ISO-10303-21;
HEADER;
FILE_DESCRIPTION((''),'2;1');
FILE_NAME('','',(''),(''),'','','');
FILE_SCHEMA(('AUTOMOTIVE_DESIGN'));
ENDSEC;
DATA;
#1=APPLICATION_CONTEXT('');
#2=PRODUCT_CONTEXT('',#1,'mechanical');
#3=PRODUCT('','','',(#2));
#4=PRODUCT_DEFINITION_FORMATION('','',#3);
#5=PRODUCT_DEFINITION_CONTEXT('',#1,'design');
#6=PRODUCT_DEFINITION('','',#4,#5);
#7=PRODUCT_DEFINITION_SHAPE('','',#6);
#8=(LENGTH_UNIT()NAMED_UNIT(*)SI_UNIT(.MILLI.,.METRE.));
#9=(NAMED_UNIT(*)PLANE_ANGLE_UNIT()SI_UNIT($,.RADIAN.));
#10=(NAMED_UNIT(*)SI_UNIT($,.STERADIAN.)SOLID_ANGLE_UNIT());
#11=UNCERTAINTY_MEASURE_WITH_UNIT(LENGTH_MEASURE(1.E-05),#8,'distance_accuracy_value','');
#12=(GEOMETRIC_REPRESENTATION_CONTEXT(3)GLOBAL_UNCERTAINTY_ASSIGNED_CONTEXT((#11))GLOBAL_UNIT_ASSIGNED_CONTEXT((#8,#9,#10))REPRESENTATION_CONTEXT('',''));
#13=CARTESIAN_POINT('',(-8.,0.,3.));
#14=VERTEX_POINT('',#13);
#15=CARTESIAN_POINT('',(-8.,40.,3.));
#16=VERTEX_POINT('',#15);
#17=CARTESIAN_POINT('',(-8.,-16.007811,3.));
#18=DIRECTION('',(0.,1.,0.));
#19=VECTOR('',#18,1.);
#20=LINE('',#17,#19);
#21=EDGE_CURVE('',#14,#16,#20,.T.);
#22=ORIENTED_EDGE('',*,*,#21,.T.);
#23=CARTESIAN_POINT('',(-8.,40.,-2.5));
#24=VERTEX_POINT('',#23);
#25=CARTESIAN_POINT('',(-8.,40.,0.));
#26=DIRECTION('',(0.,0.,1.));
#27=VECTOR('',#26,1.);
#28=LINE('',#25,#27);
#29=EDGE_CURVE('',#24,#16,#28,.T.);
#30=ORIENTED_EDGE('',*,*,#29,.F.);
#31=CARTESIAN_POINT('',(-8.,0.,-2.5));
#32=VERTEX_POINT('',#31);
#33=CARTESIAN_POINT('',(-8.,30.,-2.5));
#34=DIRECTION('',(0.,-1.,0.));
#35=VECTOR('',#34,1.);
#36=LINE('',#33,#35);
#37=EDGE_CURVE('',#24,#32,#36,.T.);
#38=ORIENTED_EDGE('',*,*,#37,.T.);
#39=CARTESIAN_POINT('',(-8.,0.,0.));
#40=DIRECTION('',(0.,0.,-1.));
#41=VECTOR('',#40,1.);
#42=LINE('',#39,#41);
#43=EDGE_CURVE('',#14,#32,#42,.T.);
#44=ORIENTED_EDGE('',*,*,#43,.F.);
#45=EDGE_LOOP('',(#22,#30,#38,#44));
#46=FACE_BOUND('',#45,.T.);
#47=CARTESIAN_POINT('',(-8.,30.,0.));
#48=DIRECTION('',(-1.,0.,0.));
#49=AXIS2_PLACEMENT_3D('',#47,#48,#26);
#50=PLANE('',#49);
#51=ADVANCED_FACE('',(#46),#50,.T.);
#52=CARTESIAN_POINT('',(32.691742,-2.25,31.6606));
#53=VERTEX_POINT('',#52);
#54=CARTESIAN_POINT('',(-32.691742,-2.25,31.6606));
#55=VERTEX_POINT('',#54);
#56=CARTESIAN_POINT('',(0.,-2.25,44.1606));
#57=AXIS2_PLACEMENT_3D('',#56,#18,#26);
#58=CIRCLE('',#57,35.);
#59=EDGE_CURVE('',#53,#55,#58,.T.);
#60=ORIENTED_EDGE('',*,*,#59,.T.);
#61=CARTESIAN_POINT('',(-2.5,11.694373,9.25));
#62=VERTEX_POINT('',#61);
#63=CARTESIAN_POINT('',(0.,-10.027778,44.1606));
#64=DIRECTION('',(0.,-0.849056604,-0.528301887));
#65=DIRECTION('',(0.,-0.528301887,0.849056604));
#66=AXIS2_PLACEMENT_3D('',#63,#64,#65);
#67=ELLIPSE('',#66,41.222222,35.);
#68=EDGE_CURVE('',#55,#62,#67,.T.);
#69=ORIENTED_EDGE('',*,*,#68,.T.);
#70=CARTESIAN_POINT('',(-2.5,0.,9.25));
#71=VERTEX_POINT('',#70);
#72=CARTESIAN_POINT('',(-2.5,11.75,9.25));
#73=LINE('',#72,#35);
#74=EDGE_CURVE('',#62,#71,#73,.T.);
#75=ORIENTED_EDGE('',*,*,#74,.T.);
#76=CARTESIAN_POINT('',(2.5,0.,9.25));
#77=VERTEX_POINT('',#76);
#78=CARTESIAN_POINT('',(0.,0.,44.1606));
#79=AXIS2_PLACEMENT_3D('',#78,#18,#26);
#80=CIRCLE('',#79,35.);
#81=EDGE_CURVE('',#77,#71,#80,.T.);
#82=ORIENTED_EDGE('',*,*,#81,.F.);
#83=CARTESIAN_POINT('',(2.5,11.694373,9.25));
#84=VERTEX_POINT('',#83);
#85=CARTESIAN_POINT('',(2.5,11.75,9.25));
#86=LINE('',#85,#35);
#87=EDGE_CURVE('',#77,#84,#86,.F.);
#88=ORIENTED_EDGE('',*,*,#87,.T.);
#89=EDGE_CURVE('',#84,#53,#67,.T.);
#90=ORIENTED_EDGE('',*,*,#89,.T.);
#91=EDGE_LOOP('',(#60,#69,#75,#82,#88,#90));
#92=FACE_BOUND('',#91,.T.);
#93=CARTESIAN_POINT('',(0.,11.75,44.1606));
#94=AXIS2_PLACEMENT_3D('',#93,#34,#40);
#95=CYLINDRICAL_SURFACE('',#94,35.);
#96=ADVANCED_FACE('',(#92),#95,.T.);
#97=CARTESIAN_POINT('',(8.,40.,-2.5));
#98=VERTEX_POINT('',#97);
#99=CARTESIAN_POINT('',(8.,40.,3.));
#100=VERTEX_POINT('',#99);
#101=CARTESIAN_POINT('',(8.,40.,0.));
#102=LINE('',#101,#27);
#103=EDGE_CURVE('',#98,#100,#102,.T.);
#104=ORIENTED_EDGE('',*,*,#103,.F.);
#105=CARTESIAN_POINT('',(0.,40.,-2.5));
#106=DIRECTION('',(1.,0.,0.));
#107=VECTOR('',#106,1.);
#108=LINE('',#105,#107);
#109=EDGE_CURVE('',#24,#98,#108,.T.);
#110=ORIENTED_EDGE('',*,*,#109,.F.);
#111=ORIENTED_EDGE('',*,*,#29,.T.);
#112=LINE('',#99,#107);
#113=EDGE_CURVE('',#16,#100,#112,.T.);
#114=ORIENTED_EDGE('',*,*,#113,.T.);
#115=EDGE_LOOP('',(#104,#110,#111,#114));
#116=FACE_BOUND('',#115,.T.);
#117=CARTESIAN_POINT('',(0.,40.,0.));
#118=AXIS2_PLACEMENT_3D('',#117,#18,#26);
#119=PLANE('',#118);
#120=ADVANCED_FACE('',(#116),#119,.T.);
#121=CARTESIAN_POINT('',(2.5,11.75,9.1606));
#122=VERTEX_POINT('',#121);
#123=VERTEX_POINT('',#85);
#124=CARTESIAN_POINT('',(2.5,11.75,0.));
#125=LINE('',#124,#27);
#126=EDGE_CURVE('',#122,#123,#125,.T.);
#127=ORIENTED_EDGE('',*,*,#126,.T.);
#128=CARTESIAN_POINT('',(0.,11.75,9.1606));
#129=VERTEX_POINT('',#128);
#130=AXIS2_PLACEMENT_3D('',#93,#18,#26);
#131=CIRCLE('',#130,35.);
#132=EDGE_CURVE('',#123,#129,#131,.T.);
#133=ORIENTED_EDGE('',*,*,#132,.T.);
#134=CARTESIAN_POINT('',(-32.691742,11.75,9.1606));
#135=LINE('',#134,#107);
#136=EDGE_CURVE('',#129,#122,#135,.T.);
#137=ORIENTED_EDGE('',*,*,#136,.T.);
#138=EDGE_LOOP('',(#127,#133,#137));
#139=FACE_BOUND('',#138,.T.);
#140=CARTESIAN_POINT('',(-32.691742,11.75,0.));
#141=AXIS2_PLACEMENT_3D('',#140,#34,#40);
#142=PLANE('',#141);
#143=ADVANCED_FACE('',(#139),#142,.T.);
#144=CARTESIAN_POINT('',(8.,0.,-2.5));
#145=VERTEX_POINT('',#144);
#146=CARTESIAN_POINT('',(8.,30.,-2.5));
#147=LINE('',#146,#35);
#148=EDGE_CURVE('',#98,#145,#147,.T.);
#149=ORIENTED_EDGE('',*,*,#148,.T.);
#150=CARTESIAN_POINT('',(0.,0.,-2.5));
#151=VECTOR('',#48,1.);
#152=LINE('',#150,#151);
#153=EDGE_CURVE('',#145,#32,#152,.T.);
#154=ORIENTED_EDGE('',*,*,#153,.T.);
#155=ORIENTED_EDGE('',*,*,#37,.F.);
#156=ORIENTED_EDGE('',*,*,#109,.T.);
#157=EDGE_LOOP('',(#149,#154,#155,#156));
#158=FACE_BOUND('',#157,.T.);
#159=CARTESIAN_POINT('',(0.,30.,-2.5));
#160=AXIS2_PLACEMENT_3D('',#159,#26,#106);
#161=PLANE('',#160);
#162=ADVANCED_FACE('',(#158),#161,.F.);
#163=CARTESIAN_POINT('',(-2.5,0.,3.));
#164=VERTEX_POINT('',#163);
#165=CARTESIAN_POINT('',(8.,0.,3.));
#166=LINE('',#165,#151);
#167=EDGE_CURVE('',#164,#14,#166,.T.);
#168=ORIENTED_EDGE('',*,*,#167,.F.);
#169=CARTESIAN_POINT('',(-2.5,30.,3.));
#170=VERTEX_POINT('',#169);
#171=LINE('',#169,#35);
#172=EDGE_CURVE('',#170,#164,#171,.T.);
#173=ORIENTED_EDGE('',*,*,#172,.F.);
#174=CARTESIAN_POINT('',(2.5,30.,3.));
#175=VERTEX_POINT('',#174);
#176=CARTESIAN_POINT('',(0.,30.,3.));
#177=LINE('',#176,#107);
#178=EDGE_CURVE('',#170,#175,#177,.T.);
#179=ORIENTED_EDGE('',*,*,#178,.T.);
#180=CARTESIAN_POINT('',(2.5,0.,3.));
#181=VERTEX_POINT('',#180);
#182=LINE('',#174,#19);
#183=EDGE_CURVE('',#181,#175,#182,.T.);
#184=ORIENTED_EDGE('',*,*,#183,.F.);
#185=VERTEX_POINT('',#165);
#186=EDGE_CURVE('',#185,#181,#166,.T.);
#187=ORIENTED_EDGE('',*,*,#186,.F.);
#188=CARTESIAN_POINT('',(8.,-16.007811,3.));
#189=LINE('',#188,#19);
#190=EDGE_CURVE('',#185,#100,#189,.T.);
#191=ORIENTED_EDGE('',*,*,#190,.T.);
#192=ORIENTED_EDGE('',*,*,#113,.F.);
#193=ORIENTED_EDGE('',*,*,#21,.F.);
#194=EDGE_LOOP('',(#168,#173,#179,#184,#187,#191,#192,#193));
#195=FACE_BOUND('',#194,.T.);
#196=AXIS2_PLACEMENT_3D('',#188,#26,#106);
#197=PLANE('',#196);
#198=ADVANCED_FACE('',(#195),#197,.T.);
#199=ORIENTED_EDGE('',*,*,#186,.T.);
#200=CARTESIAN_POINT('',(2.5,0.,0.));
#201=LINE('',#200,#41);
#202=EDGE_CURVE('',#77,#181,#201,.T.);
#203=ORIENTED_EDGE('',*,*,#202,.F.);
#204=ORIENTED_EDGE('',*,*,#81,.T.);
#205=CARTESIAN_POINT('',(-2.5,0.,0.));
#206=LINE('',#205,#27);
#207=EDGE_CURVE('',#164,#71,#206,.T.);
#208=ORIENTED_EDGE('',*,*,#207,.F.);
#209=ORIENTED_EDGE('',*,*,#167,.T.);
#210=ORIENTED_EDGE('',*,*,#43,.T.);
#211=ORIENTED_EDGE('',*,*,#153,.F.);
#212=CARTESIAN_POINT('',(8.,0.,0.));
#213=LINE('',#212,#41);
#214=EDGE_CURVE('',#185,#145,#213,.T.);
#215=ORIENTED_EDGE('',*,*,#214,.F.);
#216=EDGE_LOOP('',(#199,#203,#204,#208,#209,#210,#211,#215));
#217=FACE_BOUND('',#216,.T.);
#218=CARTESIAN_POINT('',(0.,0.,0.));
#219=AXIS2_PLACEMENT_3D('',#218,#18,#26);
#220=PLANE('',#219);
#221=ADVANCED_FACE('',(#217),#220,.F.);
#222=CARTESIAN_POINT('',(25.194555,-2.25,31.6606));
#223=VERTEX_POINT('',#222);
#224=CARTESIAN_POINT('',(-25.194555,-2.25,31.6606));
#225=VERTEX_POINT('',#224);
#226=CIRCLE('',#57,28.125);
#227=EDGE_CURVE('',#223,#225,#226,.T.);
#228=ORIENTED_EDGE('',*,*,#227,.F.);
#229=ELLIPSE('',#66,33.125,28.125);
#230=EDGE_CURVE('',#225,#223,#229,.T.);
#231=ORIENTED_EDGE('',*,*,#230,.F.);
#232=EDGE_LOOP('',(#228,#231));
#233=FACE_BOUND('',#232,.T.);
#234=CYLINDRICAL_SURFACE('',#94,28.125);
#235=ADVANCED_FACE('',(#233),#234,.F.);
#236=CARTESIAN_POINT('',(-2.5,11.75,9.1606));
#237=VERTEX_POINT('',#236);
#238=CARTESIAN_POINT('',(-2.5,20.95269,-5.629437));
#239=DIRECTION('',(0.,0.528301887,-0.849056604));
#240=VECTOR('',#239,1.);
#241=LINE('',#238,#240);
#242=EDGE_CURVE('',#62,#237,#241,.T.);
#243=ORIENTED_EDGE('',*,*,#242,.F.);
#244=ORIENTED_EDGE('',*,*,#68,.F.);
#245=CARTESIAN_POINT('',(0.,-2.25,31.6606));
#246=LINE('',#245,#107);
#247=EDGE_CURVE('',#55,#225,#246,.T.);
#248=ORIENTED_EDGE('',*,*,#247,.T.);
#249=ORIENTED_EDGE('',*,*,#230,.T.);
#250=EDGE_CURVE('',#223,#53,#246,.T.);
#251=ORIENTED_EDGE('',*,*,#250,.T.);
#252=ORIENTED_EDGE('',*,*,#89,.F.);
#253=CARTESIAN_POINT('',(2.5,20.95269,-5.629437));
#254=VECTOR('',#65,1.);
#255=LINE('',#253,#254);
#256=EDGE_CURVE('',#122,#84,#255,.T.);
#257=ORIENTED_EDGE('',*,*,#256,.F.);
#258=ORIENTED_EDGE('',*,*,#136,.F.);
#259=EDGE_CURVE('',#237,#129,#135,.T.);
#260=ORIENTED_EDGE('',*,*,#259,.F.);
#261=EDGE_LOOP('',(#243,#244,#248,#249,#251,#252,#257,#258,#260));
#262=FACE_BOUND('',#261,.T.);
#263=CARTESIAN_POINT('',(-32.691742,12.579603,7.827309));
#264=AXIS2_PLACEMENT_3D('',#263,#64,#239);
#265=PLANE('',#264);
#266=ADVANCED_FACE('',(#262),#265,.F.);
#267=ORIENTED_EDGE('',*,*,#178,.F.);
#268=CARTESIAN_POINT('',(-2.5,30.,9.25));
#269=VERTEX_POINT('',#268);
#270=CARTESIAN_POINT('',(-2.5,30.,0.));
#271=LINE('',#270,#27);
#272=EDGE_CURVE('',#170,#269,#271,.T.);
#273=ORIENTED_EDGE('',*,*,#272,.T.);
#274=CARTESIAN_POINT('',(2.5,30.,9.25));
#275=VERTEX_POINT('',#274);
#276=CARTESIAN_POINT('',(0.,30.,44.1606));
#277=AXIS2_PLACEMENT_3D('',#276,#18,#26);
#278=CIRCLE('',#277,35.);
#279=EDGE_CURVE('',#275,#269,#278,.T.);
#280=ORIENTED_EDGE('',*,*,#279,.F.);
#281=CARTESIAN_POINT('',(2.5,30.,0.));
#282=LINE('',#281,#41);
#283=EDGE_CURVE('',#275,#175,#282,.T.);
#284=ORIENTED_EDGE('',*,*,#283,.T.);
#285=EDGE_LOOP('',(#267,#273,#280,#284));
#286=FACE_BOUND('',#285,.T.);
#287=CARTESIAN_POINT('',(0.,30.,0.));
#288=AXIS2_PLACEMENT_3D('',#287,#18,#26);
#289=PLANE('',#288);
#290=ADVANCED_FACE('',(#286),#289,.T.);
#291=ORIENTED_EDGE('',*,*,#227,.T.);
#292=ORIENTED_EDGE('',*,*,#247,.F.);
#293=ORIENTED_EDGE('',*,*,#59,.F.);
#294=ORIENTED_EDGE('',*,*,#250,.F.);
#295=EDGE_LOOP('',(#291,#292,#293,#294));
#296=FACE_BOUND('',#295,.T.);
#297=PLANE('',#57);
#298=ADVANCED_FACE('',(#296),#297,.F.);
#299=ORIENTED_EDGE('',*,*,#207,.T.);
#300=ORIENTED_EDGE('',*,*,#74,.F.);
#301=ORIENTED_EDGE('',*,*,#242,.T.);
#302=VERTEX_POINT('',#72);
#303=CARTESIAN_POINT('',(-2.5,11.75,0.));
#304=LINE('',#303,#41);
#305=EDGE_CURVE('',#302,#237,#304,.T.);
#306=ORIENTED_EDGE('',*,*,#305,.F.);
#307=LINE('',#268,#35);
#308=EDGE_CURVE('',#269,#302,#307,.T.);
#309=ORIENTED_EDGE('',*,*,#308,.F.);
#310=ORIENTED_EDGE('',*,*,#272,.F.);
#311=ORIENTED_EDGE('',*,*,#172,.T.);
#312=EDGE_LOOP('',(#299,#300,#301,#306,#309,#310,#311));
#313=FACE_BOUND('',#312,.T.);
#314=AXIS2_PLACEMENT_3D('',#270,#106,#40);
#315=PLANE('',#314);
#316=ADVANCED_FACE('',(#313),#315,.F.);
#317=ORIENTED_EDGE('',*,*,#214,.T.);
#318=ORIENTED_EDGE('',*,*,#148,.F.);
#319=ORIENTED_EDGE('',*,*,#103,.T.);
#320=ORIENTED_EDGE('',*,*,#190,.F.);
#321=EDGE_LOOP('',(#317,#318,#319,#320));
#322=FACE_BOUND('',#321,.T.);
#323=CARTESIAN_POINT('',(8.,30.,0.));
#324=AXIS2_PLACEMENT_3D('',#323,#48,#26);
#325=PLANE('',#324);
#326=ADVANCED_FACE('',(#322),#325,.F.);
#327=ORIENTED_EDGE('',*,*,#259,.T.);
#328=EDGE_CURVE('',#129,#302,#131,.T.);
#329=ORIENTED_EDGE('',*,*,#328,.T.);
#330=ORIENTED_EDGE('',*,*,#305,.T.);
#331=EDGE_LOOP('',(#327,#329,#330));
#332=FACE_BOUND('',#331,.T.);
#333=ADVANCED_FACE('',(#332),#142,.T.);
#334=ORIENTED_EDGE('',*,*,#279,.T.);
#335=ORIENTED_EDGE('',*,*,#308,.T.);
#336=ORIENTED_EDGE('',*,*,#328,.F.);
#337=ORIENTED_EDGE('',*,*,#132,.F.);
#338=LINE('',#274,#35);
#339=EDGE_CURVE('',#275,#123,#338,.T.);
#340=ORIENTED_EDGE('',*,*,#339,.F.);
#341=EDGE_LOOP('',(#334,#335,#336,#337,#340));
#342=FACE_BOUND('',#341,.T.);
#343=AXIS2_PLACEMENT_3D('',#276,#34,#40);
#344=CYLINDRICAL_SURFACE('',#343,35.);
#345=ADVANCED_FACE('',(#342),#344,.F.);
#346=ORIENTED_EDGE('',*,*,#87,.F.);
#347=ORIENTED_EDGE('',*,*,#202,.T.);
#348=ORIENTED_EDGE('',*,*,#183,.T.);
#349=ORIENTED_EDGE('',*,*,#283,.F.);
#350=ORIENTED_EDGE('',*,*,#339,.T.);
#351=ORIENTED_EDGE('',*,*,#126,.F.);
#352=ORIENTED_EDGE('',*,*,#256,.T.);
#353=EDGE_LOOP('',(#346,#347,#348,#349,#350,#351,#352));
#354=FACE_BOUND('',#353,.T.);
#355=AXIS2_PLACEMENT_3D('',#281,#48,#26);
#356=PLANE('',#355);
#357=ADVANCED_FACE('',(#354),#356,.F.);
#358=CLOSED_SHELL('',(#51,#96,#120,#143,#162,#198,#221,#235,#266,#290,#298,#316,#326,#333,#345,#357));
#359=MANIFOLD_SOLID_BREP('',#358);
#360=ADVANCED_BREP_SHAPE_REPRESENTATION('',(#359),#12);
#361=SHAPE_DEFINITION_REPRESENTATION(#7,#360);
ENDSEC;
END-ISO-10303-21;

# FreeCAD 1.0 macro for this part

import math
import FreeCAD as App
import Part
import Sketcher


def add_polygon(sketch, points):
    """Adds a closed chain of lines whose ends are joined by coincident constraints."""
    first, n = sketch.GeometryCount, len(points)
    for a, b in zip(points, points[1:] + points[:1]):
        sketch.addGeometry(Part.LineSegment(App.Vector(*a, 0), App.Vector(*b, 0)), False)
    for i in range(n):
        sketch.addConstraint(Sketcher.Constraint("Coincident", first + i, 2, first + (i + 1) % n, 1))

doc = App.newDocument("Part")
body = doc.addObject("PartDesign::Body", "Body")

sketch1 = body.newObject("Sketcher::SketchObject", "Sketch")
sketch1.AttachmentSupport = (doc.getObject("XZ_Plane"), [""])
sketch1.MapMode = "FlatFace"
sketch1.addGeometry([
    Part.LineSegment(App.Vector(-8, -2.5, 0), App.Vector(-8, 2.5, 0)),
    Part.LineSegment(App.Vector(-8, 2.5, 0), App.Vector(-2.5, 2.5, 0)),
    Part.LineSegment(App.Vector(-2.5, 2.5, 0), App.Vector(-2.5, 9.25, 0)),
    Part.ArcOfCircle(Part.Circle(App.Vector(0, 44.1606, 0), App.Vector(0, 0, 1), 35), math.radians(-94.096044), math.radians(-85.903956)),
    Part.LineSegment(App.Vector(2.5, 9.25, 0), App.Vector(2.5, 2.5, 0)),
    Part.LineSegment(App.Vector(2.5, 2.5, 0), App.Vector(8, 2.5, 0)),
    Part.LineSegment(App.Vector(8, 2.5, 0), App.Vector(8, -2.5, 0)),
    Part.LineSegment(App.Vector(8, -2.5, 0), App.Vector(-8, -2.5, 0)),
], False)
sketch1.addConstraint([
    Sketcher.Constraint("Coincident", 0, 2, 1, 1),
    Sketcher.Constraint("Coincident", 1, 2, 2, 1),
    Sketcher.Constraint("Coincident", 2, 2, 3, 1),
    Sketcher.Constraint("Coincident", 3, 2, 4, 1),
    Sketcher.Constraint("Coincident", 4, 2, 5, 1),
    Sketcher.Constraint("Coincident", 5, 2, 6, 1),
    Sketcher.Constraint("Coincident", 6, 2, 7, 1),
    Sketcher.Constraint("Coincident", 7, 2, 0, 1),
    Sketcher.Constraint("Vertical", 0),
    Sketcher.Constraint("Horizontal", 1),
    Sketcher.Constraint("Vertical", 2),
    Sketcher.Constraint("Vertical", 4),
    Sketcher.Constraint("Horizontal", 5),
    Sketcher.Constraint("Vertical", 6),
    Sketcher.Constraint("Horizontal", 7),
    Sketcher.Constraint("Symmetric", 0, 2, 6, 2, -1, 1),
    Sketcher.Constraint("Symmetric", 2, 2, 3, 2, -2),
    Sketcher.Constraint("Horizontal", 1, 2, 4, 2),
    Sketcher.Constraint("Radius", 3, 35.0),
    Sketcher.Constraint("DistanceX", 7, 2, 7, 1, 16.0),
    Sketcher.Constraint("DistanceY", 0, 1, 0, 2, 5.0),
    Sketcher.Constraint("DistanceX", 1, 1, 1, 2, 5.5),
    Sketcher.Constraint("DistanceY", 2, 1, 2, 2, 6.75),
])
pad1 = body.newObject("PartDesign::Pad", "Pad")
pad1.Profile = sketch1
pad1.Length = 30
pad1.Reversed = True

sketch2 = body.newObject("Sketcher::SketchObject", "Sketch001")
sketch2.AttachmentSupport = (doc.getObject("XZ_Plane"), [""])
sketch2.MapMode = "FlatFace"
sketch2.AttachmentOffset = App.Placement(App.Vector(0, 0, 2.25), App.Rotation())
sketch2.addGeometry([
    Part.ArcOfCircle(Part.Circle(App.Vector(0, 44.1606, 0), App.Vector(0, 0, 1), 35), math.radians(-159.075168), math.radians(-20.924832)),
    Part.LineSegment(App.Vector(-32.691742, 31.6606, 0), App.Vector(-25.194555, 31.6606, 0)),
    Part.ArcOfCircle(Part.Circle(App.Vector(0, 44.1606, 0), App.Vector(0, 0, 1), 28.125), math.radians(-153.6122), math.radians(-26.3878)),
    Part.LineSegment(App.Vector(25.194555, 31.6606, 0), App.Vector(32.691742, 31.6606, 0)),
], False)
sketch2.addConstraint([
    Sketcher.Constraint("Coincident", 0, 1, 1, 1),
    Sketcher.Constraint("Coincident", 1, 2, 2, 1),
    Sketcher.Constraint("Coincident", 2, 2, 3, 1),
    Sketcher.Constraint("Coincident", 3, 2, 0, 2),
    Sketcher.Constraint("Horizontal", 1),
    Sketcher.Constraint("Horizontal", 3),
    Sketcher.Constraint("Coincident", 2, 3, 0, 3),
    Sketcher.Constraint("Symmetric", 1, 2, 2, 2, -2),
    Sketcher.Constraint("Radius", 0, 35.0),
    Sketcher.Constraint("Radius", 2, 28.125),
    Sketcher.Constraint("DistanceY", 0, 1, 2, 3, 12.5),
    Sketcher.Constraint("DistanceY", -1, 1, 0, 3, 44.1606),
])
pad2 = body.newObject("PartDesign::Pad", "Pad001")
pad2.Profile = sketch2
pad2.Length = 14
pad2.Reversed = True

sketch3 = body.newObject("Sketcher::SketchObject", "Sketch002")
sketch3.AttachmentSupport = (doc.getObject("YZ_Plane"), [""])
sketch3.MapMode = "FlatFace"
add_polygon(sketch3, [(11.75, 31.6606), (-2.25, 31.6606), (11.75, 9.1606)])
sketch3.addConstraint([
    Sketcher.Constraint("Horizontal", 0),
    Sketcher.Constraint("Vertical", 2),
    Sketcher.Constraint("DistanceX", 0, 2, 0, 1, 14.0),
    Sketcher.Constraint("DistanceY", 2, 1, 2, 2, 22.5),
    Sketcher.Constraint("DistanceX", 0, 2, -1, 1, 2.25),
    Sketcher.Constraint("DistanceY", -1, 1, 0, 2, 31.6606),
])
pocket1 = body.newObject("PartDesign::Pocket", "Pocket")
pocket1.Profile = sketch3
pocket1.Type = "ThroughAll"
pocket1.Midplane = True

sketch4 = body.newObject("Sketcher::SketchObject", "Sketch003")
sketch4.AttachmentSupport = (doc.getObject("XZ_Plane"), [""])
sketch4.MapMode = "FlatFace"
sketch4.AttachmentOffset = App.Placement(App.Vector(0, 0, -30), App.Rotation())
add_polygon(sketch4, [(-8, -2.5), (-8, 2.5), (8, 2.5), (8, -2.5)])
sketch4.addConstraint([
    Sketcher.Constraint("Vertical", 0),
    Sketcher.Constraint("Horizontal", 1),
    Sketcher.Constraint("Vertical", 2),
    Sketcher.Constraint("Horizontal", 3),
    Sketcher.Constraint("Symmetric", 0, 2, 2, 2, -1, 1),
    Sketcher.Constraint("DistanceX", 1, 1, 1, 2, 16.0),
    Sketcher.Constraint("DistanceY", 0, 1, 0, 2, 5.0),
])
pad3 = body.newObject("PartDesign::Pad", "Pad002")
pad3.Profile = sketch4
pad3.Length = 10
pad3.Reversed = True

sketch5 = body.newObject("Sketcher::SketchObject", "Sketch004")
sketch5.AttachmentSupport = (doc.getObject("XZ_Plane"), [""])
sketch5.MapMode = "FlatFace"
sketch5.AttachmentOffset = App.Placement(App.Vector(0, 0, -40), App.Rotation())
add_polygon(sketch5, [(-8, 2.5), (-8, 3), (8, 3), (8, 2.5)])
sketch5.addConstraint([
    Sketcher.Constraint("Vertical", 0),
    Sketcher.Constraint("Horizontal", 1),
    Sketcher.Constraint("Vertical", 2),
    Sketcher.Constraint("Horizontal", 3),
    Sketcher.Constraint("DistanceX", 1, 1, 1, 2, 16.0),
    Sketcher.Constraint("DistanceY", 0, 1, 0, 2, 0.5),
    Sketcher.Constraint("DistanceX", 0, 2, -1, 1, 8.0),
    Sketcher.Constraint("DistanceY", -1, 1, 0, 2, 3.0),
])
pad4 = body.newObject("PartDesign::Pad", "Pad003")
pad4.Profile = sketch5
pad4.Length = 40

doc.recompute()
